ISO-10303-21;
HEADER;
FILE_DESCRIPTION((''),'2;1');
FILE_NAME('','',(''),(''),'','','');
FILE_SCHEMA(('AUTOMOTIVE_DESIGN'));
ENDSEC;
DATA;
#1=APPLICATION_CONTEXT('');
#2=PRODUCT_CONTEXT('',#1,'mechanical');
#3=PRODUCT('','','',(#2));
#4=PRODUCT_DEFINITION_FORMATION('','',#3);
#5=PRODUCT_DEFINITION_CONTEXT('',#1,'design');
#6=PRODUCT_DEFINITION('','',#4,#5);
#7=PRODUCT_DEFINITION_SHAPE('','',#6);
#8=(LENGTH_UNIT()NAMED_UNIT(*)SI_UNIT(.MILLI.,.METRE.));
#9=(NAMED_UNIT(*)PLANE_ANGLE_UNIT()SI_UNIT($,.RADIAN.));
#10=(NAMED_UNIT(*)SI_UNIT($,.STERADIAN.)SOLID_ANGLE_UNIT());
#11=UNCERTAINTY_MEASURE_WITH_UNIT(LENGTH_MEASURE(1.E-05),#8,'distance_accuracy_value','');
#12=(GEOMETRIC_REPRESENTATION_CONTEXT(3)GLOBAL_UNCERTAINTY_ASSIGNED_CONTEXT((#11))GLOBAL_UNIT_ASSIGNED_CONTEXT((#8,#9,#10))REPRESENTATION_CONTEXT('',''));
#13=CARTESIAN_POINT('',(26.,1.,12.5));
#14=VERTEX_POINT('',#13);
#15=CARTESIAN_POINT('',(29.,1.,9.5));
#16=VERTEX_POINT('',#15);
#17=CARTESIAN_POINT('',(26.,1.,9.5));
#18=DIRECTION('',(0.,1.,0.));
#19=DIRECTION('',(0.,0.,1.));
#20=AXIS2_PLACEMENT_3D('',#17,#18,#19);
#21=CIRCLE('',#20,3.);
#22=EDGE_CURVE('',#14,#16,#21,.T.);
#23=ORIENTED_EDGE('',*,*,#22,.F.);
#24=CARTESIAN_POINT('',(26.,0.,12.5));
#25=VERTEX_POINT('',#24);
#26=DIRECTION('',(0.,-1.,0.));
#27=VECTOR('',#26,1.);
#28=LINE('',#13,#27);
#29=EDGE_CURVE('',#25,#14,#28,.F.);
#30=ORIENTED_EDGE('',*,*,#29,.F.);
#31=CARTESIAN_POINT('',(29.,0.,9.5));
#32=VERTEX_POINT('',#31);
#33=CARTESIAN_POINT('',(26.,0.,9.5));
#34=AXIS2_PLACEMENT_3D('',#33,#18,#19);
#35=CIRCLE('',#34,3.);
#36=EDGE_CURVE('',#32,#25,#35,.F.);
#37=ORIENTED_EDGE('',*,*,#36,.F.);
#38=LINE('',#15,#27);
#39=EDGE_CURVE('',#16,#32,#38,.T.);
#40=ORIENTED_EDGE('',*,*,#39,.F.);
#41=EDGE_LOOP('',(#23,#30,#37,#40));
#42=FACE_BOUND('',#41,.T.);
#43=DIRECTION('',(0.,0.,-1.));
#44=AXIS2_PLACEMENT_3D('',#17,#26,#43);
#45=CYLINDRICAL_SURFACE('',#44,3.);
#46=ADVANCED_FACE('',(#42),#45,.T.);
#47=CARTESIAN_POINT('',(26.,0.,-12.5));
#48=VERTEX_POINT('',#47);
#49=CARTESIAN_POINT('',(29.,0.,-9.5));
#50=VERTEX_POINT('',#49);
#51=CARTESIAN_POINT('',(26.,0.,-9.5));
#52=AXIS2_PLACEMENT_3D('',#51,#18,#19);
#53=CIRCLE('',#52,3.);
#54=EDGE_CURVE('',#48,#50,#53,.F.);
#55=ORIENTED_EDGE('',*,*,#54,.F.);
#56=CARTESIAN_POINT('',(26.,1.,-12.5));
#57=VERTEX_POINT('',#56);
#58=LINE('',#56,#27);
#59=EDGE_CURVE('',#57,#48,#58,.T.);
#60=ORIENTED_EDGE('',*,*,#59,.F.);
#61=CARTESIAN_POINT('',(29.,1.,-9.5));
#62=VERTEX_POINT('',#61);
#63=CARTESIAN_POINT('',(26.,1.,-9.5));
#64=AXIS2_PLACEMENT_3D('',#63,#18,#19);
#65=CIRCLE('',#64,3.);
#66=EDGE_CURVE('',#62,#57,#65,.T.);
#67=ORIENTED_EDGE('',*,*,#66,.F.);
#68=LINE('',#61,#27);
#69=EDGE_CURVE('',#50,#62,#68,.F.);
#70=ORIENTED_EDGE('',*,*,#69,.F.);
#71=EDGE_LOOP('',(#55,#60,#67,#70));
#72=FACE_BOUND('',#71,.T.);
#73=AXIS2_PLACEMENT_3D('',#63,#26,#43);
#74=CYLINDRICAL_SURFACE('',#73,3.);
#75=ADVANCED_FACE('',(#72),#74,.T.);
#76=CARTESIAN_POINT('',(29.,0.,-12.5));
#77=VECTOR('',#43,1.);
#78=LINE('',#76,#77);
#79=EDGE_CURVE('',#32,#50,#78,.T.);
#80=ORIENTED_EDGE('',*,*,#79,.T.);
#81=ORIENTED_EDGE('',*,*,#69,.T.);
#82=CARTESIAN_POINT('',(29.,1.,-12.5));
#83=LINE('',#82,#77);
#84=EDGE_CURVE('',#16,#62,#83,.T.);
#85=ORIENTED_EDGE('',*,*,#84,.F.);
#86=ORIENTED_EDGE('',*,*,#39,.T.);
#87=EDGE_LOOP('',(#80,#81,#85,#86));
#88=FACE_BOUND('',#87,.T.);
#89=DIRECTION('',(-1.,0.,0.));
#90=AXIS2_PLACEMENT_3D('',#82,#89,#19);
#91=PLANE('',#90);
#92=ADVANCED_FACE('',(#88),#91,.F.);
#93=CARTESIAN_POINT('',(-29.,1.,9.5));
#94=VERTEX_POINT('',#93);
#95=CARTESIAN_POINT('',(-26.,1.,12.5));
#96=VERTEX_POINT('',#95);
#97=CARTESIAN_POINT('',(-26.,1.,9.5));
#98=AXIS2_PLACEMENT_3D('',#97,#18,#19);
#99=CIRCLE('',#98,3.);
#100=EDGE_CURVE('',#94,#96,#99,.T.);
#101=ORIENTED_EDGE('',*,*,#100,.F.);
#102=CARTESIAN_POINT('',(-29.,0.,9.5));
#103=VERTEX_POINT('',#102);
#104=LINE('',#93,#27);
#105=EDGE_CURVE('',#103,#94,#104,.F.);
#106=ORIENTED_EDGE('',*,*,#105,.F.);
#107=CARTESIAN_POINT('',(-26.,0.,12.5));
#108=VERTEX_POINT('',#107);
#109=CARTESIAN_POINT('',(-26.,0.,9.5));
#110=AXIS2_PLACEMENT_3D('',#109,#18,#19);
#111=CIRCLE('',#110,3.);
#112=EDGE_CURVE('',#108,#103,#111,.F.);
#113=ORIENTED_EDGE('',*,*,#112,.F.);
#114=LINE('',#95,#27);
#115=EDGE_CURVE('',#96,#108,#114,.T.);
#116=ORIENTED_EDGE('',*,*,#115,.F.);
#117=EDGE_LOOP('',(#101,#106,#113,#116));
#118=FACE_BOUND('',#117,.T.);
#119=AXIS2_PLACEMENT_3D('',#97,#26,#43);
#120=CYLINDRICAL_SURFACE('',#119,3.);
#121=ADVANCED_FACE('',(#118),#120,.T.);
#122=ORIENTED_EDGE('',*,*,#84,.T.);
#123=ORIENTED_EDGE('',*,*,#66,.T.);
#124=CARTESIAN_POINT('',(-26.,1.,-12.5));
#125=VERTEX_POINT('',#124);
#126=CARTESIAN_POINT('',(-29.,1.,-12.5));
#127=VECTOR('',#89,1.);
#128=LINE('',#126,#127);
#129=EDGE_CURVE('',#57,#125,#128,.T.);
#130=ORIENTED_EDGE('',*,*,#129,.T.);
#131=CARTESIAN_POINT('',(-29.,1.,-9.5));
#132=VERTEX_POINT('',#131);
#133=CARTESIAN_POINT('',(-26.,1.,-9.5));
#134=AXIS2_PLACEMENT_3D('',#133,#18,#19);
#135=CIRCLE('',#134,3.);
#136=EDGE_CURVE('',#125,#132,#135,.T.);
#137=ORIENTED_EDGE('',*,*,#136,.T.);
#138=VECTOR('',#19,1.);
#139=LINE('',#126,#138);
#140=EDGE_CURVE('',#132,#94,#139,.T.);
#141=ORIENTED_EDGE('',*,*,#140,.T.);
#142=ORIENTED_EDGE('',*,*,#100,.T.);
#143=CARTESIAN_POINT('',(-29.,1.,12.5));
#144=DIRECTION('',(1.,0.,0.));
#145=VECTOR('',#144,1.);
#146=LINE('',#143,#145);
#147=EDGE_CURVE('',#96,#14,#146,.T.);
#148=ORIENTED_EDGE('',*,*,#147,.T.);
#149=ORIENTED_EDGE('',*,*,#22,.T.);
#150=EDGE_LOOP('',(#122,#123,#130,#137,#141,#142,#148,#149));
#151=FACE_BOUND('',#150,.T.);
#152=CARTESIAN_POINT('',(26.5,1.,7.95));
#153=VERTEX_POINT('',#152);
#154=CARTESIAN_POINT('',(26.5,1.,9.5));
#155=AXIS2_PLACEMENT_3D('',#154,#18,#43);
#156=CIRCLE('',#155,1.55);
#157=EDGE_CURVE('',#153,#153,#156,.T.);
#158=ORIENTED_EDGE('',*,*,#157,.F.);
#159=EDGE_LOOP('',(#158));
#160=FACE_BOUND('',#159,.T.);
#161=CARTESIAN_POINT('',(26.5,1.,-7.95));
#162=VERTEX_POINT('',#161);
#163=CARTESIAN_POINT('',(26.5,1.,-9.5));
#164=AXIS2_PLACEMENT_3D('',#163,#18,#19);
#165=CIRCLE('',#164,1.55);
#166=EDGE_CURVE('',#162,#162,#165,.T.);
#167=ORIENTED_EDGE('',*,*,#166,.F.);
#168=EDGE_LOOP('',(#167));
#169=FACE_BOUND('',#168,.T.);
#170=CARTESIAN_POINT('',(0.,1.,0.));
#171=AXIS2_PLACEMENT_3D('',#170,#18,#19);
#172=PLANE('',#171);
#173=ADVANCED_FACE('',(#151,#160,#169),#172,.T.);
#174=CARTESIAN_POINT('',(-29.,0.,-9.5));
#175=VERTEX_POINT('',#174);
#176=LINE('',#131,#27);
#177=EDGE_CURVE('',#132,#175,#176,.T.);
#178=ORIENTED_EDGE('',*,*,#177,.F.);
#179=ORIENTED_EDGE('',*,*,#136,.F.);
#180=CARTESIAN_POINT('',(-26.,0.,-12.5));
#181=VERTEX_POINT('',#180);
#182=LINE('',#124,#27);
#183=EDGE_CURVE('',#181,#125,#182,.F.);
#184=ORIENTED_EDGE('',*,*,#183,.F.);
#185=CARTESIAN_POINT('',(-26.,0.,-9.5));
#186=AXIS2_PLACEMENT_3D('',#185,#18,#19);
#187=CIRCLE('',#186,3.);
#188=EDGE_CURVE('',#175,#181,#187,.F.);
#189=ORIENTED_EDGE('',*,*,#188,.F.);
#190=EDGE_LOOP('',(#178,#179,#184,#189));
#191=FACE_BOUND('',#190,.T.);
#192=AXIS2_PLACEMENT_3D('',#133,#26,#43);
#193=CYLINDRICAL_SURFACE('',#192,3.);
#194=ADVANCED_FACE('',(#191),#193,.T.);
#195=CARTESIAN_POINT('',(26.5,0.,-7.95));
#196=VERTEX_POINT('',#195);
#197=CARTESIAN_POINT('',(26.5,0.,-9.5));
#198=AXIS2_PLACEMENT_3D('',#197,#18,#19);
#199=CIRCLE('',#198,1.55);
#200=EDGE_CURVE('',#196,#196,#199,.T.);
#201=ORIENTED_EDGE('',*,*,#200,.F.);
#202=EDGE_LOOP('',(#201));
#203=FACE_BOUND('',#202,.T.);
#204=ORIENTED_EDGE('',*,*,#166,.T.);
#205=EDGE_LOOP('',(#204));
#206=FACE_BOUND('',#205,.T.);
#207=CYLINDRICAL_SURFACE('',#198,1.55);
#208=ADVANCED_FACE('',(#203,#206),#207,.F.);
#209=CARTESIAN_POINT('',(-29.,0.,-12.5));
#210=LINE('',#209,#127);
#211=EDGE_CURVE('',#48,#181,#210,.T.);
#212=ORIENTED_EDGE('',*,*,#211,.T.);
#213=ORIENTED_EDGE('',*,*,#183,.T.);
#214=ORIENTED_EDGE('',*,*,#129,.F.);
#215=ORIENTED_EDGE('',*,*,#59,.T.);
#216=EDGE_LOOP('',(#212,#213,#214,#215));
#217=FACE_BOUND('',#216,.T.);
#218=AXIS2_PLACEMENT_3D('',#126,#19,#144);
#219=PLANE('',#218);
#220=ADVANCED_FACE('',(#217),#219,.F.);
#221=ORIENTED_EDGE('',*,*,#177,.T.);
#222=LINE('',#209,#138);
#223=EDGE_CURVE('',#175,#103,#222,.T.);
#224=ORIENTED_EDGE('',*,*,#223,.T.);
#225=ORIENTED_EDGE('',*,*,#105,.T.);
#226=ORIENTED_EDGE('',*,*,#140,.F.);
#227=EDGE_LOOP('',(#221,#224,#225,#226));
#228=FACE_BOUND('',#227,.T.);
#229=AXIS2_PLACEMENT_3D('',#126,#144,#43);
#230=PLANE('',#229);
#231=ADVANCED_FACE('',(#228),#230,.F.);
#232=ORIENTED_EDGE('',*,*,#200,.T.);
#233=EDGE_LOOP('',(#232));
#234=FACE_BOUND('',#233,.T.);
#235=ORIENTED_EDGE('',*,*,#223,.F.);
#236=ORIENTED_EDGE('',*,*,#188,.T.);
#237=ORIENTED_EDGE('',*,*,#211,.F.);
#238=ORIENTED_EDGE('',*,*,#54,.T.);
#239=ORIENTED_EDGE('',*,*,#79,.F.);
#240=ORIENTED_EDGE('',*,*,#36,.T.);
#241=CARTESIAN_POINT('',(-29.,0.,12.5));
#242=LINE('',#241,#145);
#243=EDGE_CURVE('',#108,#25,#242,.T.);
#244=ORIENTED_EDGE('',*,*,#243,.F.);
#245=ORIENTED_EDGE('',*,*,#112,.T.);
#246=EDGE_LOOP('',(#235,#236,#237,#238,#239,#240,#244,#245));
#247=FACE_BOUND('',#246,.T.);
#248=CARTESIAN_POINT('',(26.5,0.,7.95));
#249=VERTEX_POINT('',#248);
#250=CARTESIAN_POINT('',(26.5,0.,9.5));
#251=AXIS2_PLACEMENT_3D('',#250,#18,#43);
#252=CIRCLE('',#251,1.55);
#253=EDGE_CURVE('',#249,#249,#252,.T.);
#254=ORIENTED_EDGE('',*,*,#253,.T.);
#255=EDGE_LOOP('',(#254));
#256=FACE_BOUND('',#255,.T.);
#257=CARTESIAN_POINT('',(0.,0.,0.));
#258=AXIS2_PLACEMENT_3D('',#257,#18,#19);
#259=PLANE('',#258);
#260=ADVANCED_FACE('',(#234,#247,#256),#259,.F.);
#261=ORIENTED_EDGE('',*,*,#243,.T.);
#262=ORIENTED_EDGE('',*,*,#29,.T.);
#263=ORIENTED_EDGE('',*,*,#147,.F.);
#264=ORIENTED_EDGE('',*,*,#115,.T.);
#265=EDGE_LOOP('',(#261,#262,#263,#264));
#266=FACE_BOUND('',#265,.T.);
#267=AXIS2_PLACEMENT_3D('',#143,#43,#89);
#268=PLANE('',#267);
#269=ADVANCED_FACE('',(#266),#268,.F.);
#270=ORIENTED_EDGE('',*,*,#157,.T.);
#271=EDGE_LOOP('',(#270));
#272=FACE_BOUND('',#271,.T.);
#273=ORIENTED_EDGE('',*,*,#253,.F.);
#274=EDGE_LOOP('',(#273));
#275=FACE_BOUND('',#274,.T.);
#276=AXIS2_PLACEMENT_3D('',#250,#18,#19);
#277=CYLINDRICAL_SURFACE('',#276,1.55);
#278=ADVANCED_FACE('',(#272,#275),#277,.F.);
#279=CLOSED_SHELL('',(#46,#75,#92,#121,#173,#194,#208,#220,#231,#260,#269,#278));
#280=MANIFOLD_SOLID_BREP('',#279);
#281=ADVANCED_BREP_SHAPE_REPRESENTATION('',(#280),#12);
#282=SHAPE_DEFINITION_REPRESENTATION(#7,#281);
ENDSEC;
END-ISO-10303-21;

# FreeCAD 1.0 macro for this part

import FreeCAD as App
import Part
import Sketcher


def edges_at(feature, points):
    """Names of the edges that pass closest to the given points."""
    edges = feature.Shape.Edges
    near = lambda p: min(range(len(edges)), key=lambda i: edges[i].distToShape(Part.Vertex(*p))[0])
    return sorted({f"Edge{near(p) + 1}" for p in points})

doc = App.newDocument("Part")
body = doc.addObject("PartDesign::Body", "Body")

# Sketch on XZ plane
sketch1 = body.newObject("Sketcher::SketchObject", "Sketch")
sketch1.AttachmentSupport = (doc.getObject("XZ_Plane"), [""])
sketch1.MapMode = "FlatFace"
sketch1.addGeometry([
    Part.LineSegment(App.Vector(-29, -12, 0), App.Vector(-29, 12, 0)),
    Part.LineSegment(App.Vector(-29, 12, 0), App.Vector(29, 12, 0)),
    Part.LineSegment(App.Vector(29, 12, 0), App.Vector(29, -12, 0)),
    Part.LineSegment(App.Vector(29, -12, 0), App.Vector(-29, -12, 0)),
], False)
sketch1.addConstraint([
    Sketcher.Constraint("Coincident", 0, 2, 1, 1),
    Sketcher.Constraint("Coincident", 1, 2, 2, 1),
    Sketcher.Constraint("Coincident", 2, 2, 3, 1),
    Sketcher.Constraint("Coincident", 3, 2, 0, 1),
    Sketcher.Constraint("Vertical", 0),
    Sketcher.Constraint("Horizontal", 1),
    Sketcher.Constraint("Vertical", 2),
    Sketcher.Constraint("Horizontal", 3),
    Sketcher.Constraint("Symmetric", 0, 2, 2, 2, -1, 1),
    Sketcher.Constraint("DistanceX", 1, 1, 1, 2, 58.0),
    Sketcher.Constraint("DistanceY", 0, 1, 0, 2, 25.0),
])
pad1 = body.newObject("PartDesign::Pad", "Pad")
pad1.Profile = sketch1
pad1.Length = 1
pad1.Reversed = True

# Sketch on XZ plane
sketch2 = body.newObject("Sketcher::SketchObject", "Sketch001")
sketch2.AttachmentSupport = (doc.getObject("XZ_Plane"), [""])
sketch2.MapMode = "FlatFace"
sketch2.AttachmentOffset = App.Placement(App.Vector(0, 0, -1), App.Rotation())
sketch2.addGeometry([
    Part.Circle(App.Vector(26.5, -9.5, 0), App.Vector(0, 0, 1), 1.6),
    Part.Circle(App.Vector(26.5, 9.5, 0), App.Vector(0, 0, 1), 1.6),
], False)
sketch2.addConstraint([
    Sketcher.Constraint("Equal", 0, 1),
    Sketcher.Constraint("Symmetric", 0, 3, 1, 3, -1),
    Sketcher.Constraint("Diameter", 0, 3.1),
    Sketcher.Constraint("DistanceY", 0, 3, 1, 3, 19.0),
    Sketcher.Constraint("DistanceX", -1, 1, 0, 3, 26.5),
])
pocket1 = body.newObject("PartDesign::Pocket", "Pocket")
pocket1.Profile = sketch2
pocket1.Type = "ThroughAll"
pocket1.Reversed = True
doc.recompute()

fillet = body.newObject("PartDesign::Fillet", "Fillet")
fillet.Base = (pocket1, edges_at(pocket1, [
    (29, 0.5, 12.5),
    (-29, 0.5, 12.5),
    (-29, 0.5, -12.5),
    (29, 0.5, -12.5),
]))
fillet.Radius = 3

doc.recompute()
